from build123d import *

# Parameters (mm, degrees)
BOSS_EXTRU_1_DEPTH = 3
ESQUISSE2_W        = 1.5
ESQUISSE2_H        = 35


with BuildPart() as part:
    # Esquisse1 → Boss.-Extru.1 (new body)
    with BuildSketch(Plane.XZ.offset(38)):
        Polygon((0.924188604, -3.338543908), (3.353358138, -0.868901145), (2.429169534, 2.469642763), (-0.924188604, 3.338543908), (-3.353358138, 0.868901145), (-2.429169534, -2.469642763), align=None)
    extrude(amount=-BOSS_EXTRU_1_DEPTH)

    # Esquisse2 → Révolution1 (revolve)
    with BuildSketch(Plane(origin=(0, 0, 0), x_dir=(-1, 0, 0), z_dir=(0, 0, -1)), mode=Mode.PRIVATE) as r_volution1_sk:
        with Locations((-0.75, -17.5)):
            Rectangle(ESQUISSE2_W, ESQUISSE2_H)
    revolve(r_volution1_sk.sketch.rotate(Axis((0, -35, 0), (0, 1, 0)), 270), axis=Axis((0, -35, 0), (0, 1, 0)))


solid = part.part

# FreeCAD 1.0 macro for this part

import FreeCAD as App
import Part
import Sketcher

V = App.Vector

doc = App.newDocument("Part")
body = doc.addObject("PartDesign::Body", "Body")

sketch1 = body.newObject("Sketcher::SketchObject", "Sketch")
sketch1.AttachmentSupport = (doc.getObject("XZ_Plane"), [""])
sketch1.MapMode = "FlatFace"
sketch1.AttachmentOffset = App.Placement(V(0, 0, 38), App.Rotation())
sketch1.addGeometry([
    Part.LineSegment(V(0.9, -3.3, 0), V(3.4, -0.9, 0)),
    Part.LineSegment(V(3.4, -0.9, 0), V(2.4, 2.5, 0)),
    Part.LineSegment(V(2.4, 2.5, 0), V(-0.9, 3.3, 0)),
    Part.LineSegment(V(-0.9, 3.3, 0), V(-3.4, 0.9, 0)),
    Part.LineSegment(V(-3.4, 0.9, 0), V(-2.4, -2.5, 0)),
    Part.LineSegment(V(-2.4, -2.5, 0), V(0.9, -3.3, 0)),
], False)
sketch1.addConstraint([
    Sketcher.Constraint("Coincident", 0, 2, 1, 1),
    Sketcher.Constraint("Coincident", 1, 2, 2, 1),
    Sketcher.Constraint("Coincident", 2, 2, 3, 1),
    Sketcher.Constraint("Coincident", 3, 2, 4, 1),
    Sketcher.Constraint("Coincident", 4, 2, 5, 1),
    Sketcher.Constraint("Coincident", 5, 2, 0, 1),
    Sketcher.Constraint("Symmetric", 0, 2, 3, 2, -1, 1),
    Sketcher.Constraint("Symmetric", 1, 2, 4, 2, -1, 1),
    Sketcher.Constraint("Symmetric", 2, 2, 5, 2, -1, 1),
    Sketcher.Constraint("Equal", 0, 1),
    Sketcher.Constraint("Equal", 1, 2),
    Sketcher.Constraint("Distance", 0, 3.464102),
    Sketcher.Constraint("DistanceY", 0, 2, -1, 1, 0.868901),
    Sketcher.Constraint("DistanceY", 1, 2, 2, 2, 0.868901),
    Sketcher.Constraint("DistanceX", -1, 1, 0, 2, 3.353358),
])
pad1 = body.newObject("PartDesign::Pad", "Pad")
pad1.Profile = sketch1
pad1.Length = 3
pad1.Reversed = True

sketch2 = body.newObject("Sketcher::SketchObject", "Sketch001")
sketch2.AttachmentSupport = (doc.getObject("XY_Plane"), [""])
sketch2.MapMode = "FlatFace"
sketch2.addGeometry([
    Part.LineSegment(V(1.5, 0, 0), V(1.5, -35, 0)),
    Part.LineSegment(V(1.5, -35, 0), V(0, -35, 0)),
    Part.LineSegment(V(0, -35, 0), V(0, 0, 0)),
    Part.LineSegment(V(0, 0, 0), V(1.5, 0, 0)),
], False)
sketch2.addConstraint([
    Sketcher.Constraint("Coincident", 0, 2, 1, 1),
    Sketcher.Constraint("Coincident", 1, 2, 2, 1),
    Sketcher.Constraint("Coincident", 2, 2, 3, 1),
    Sketcher.Constraint("Coincident", 3, 2, 0, 1),
    Sketcher.Constraint("Vertical", 0),
    Sketcher.Constraint("Horizontal", 1),
    Sketcher.Constraint("Vertical", 2),
    Sketcher.Constraint("Horizontal", 3),
    Sketcher.Constraint("Coincident", 2, 2, -1, 1),
    Sketcher.Constraint("DistanceY", 0, 2, 0, 1, 35.0),
    Sketcher.Constraint("DistanceX", 1, 2, 1, 1, 1.5),
])
revolution = body.newObject("PartDesign::Revolution", "Revolution")
revolution.Profile = sketch2
revolution.ReferenceAxis = (sketch2, ["V_Axis"])
revolution.Angle = 360

doc.recompute()
